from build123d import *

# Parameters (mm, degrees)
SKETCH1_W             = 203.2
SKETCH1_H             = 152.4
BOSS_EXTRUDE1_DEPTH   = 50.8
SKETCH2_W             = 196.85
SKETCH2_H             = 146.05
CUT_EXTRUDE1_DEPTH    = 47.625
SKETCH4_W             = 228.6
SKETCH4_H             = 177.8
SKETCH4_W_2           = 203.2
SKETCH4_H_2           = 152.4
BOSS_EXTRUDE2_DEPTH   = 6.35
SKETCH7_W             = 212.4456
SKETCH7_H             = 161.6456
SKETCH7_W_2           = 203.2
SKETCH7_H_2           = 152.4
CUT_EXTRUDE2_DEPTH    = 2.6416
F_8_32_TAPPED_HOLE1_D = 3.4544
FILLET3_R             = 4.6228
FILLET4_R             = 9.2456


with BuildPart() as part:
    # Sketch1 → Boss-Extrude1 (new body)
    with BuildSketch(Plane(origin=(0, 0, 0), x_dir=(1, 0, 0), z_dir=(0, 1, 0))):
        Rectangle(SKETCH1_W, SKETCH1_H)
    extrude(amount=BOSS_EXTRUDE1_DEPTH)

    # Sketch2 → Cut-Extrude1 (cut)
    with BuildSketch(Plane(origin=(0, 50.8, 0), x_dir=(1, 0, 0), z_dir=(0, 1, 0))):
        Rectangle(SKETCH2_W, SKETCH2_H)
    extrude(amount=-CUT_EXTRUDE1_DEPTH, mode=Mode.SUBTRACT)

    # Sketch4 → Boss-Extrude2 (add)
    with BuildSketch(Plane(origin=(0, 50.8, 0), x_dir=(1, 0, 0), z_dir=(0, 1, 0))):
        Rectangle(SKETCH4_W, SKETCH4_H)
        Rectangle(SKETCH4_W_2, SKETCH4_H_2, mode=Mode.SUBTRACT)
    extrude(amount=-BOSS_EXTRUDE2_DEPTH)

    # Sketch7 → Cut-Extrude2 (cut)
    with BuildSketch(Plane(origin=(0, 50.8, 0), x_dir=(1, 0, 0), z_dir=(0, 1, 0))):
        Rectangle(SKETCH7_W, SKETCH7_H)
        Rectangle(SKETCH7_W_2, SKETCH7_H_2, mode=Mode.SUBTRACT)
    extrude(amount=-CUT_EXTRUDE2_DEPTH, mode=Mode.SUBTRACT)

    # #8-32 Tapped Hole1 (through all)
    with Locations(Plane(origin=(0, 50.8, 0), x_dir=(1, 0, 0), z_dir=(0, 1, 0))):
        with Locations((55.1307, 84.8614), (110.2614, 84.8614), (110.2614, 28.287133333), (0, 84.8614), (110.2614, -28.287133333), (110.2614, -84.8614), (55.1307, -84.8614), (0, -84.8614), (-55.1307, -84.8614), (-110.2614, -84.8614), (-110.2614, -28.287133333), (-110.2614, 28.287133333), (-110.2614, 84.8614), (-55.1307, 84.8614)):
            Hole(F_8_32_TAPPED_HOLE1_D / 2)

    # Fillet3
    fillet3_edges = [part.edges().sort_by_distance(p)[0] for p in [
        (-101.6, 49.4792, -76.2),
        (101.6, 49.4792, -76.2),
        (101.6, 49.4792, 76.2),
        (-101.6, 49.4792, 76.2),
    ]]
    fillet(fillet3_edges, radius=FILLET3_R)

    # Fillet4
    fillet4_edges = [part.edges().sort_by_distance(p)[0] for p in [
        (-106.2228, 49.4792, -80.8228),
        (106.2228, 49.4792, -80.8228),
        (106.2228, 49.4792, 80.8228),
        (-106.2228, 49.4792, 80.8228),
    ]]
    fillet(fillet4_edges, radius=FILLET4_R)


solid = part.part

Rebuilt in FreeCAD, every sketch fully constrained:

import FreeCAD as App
import Part
import Sketcher
Q = App.Units.Quantity


def edges_at(feature, points):
    """Names of the edges that pass closest to the given points."""
    edges = feature.Shape.Edges
    near = lambda p: min(range(len(edges)), key=lambda i: edges[i].distToShape(Part.Vertex(*p))[0])
    return sorted({f"Edge{near(p) + 1}" for p in points})


def add_polygon(sketch, points):
    """Adds a closed chain of lines whose ends are joined by coincident constraints."""
    first, n = sketch.GeometryCount, len(points)
    for a, b in zip(points, points[1:] + points[:1]):
        sketch.addGeometry(Part.LineSegment(App.Vector(*a, 0), App.Vector(*b, 0)), False)
    for i in range(n):
        sketch.addConstraint(Sketcher.Constraint("Coincident", first + i, 2, first + (i + 1) % n, 1))

doc = App.newDocument("Part")
body = doc.addObject("PartDesign::Body", "Body")

sketch1 = doc.addObject("Sketcher::SketchObject", "Sketch")
body.addObject(sketch1)
sketch1.AttachmentSupport = (doc.XZ_Plane, [""])
sketch1.MapMode = "FlatFace"
add_polygon(sketch1, [(-102, -76), (-102, 76), (102, 76), (102, -76)])
sketch1.addConstraint([
    Sketcher.Constraint("Vertical", 0),
    Sketcher.Constraint("Horizontal", 1),
    Sketcher.Constraint("Vertical", 2),
    Sketcher.Constraint("Horizontal", 3),
    Sketcher.Constraint("Symmetric", 0, 2, 2, 2, -1, 1),
    Sketcher.Constraint("DistanceX", 1, 1, 1, 2, Q("8 in")),
    Sketcher.Constraint("DistanceY", 0, 1, 0, 2, Q("6 in")),
])
pad1 = doc.addObject("PartDesign::Pad", "Pad")
body.addObject(pad1)
pad1.Profile = sketch1
pad1.Length = Q("2 in")
pad1.Reversed = True

sketch2 = doc.addObject("Sketcher::SketchObject", "Sketch001")
body.addObject(sketch2)
sketch2.AttachmentSupport = (doc.XZ_Plane, [""])
sketch2.MapMode = "FlatFace"
sketch2.AttachmentOffset = App.Placement(App.Vector(0, 0, -2 * 25.4), App.Rotation())
add_polygon(sketch2, [(-98, -73), (-98, 73), (98, 73), (98, -73)])
sketch2.addConstraint([
    Sketcher.Constraint("Vertical", 0),
    Sketcher.Constraint("Horizontal", 1),
    Sketcher.Constraint("Vertical", 2),
    Sketcher.Constraint("Horizontal", 3),
    Sketcher.Constraint("Symmetric", 0, 2, 2, 2, -1, 1),
    Sketcher.Constraint("DistanceX", 1, 1, 1, 2, Q("7.75 in")),
    Sketcher.Constraint("DistanceY", 0, 1, 0, 2, Q("5.75 in")),
])
pocket1 = doc.addObject("PartDesign::Pocket", "Pocket")
body.addObject(pocket1)
pocket1.Profile = sketch2
pocket1.Length = Q("1.875 in")
pocket1.Reversed = True

sketch3 = doc.addObject("Sketcher::SketchObject", "Sketch002")
body.addObject(sketch3)
sketch3.AttachmentSupport = (doc.XZ_Plane, [""])
sketch3.MapMode = "FlatFace"
sketch3.AttachmentOffset = App.Placement(App.Vector(0, 0, -2 * 25.4), App.Rotation())
add_polygon(sketch3, [(-114, -89), (-114, 89), (114, 89), (114, -89)])
add_polygon(sketch3, [(102, 76), (-102, 76), (-102, -76), (102, -76)])
sketch3.addConstraint([
    Sketcher.Constraint("Vertical", 0),
    Sketcher.Constraint("Horizontal", 1),
    Sketcher.Constraint("Vertical", 2),
    Sketcher.Constraint("Horizontal", 3),
    Sketcher.Constraint("Horizontal", 4),
    Sketcher.Constraint("Vertical", 5),
    Sketcher.Constraint("Horizontal", 6),
    Sketcher.Constraint("Vertical", 7),
    Sketcher.Constraint("Symmetric", 0, 2, 2, 2, -1, 1),
    Sketcher.Constraint("Symmetric", 4, 2, 6, 2, -1, 1),
    Sketcher.Constraint("DistanceX", 1, 1, 1, 2, Q("9 in")),
    Sketcher.Constraint("DistanceX", 4, 2, 4, 1, Q("8 in")),
    Sketcher.Constraint("DistanceY", 0, 1, 0, 2, Q("7 in")),
    Sketcher.Constraint("DistanceY", 5, 2, 5, 1, Q("6 in")),
])
pad2 = doc.addObject("PartDesign::Pad", "Pad001")
body.addObject(pad2)
pad2.Profile = sketch3
pad2.Length = Q("0.25 in")

sketch4 = doc.addObject("Sketcher::SketchObject", "Sketch003")
body.addObject(sketch4)
sketch4.AttachmentSupport = (doc.XZ_Plane, [""])
sketch4.MapMode = "FlatFace"
sketch4.AttachmentOffset = App.Placement(App.Vector(0, 0, -2 * 25.4), App.Rotation())
add_polygon(sketch4, [(-106, -81), (-106, 81), (106, 81), (106, -81)])
add_polygon(sketch4, [(102, 76), (-102, 76), (-102, -76), (102, -76)])
sketch4.addConstraint([
    Sketcher.Constraint("Vertical", 0),
    Sketcher.Constraint("Horizontal", 1),
    Sketcher.Constraint("Vertical", 2),
    Sketcher.Constraint("Horizontal", 3),
    Sketcher.Constraint("Horizontal", 4),
    Sketcher.Constraint("Vertical", 5),
    Sketcher.Constraint("Horizontal", 6),
    Sketcher.Constraint("Vertical", 7),
    Sketcher.Constraint("Symmetric", 0, 2, 2, 2, -1, 1),
    Sketcher.Constraint("Symmetric", 4, 2, 6, 2, -1, 1),
    Sketcher.Constraint("DistanceX", 4, 2, 4, 1, Q("8 in")),
    Sketcher.Constraint("DistanceY", 5, 2, 5, 1, Q("6 in")),
    Sketcher.Constraint("DistanceX", 1, 1, 1, 2, Q("8.364 in")),
    Sketcher.Constraint("DistanceY", 0, 1, 0, 2, Q("6.364 in")),
])
pocket2 = doc.addObject("PartDesign::Pocket", "Pocket001")
body.addObject(pocket2)
pocket2.Profile = sketch4
pocket2.Length = Q("0.104 in")
pocket2.Reversed = True

sketch5 = doc.addObject("Sketcher::SketchObject", "Sketch004")
body.addObject(sketch5)
sketch5.AttachmentSupport = (doc.XZ_Plane, [""])
sketch5.MapMode = "FlatFace"
sketch5.AttachmentOffset = App.Placement(App.Vector(0, 0, -2 * 25.4), App.Rotation())
sketch5.addGeometry([
    Part.Circle(App.Vector(55.1, -84.9, 0), App.Vector(0, 0, 1), 1.7),
    Part.Circle(App.Vector(110.3, -84.9, 0), App.Vector(0, 0, 1), 1.7),
    Part.Circle(App.Vector(110.3, -28.3, 0), App.Vector(0, 0, 1), 1.7),
    Part.Circle(App.Vector(0, -84.9, 0), App.Vector(0, 0, 1), 1.7),
    Part.Circle(App.Vector(110.3, 28.3, 0), App.Vector(0, 0, 1), 1.7),
    Part.Circle(App.Vector(110.3, 84.9, 0), App.Vector(0, 0, 1), 1.7),
    Part.Circle(App.Vector(55.1, 84.9, 0), App.Vector(0, 0, 1), 1.7),
    Part.Circle(App.Vector(0, 84.9, 0), App.Vector(0, 0, 1), 1.7),
    Part.Circle(App.Vector(-55.1, 84.9, 0), App.Vector(0, 0, 1), 1.7),
    Part.Circle(App.Vector(-110.3, 84.9, 0), App.Vector(0, 0, 1), 1.7),
    Part.Circle(App.Vector(-110.3, 28.3, 0), App.Vector(0, 0, 1), 1.7),
    Part.Circle(App.Vector(-110.3, -28.3, 0), App.Vector(0, 0, 1), 1.7),
    Part.Circle(App.Vector(-110.3, -84.9, 0), App.Vector(0, 0, 1), 1.7),
    Part.Circle(App.Vector(-55.1, -84.9, 0), App.Vector(0, 0, 1), 1.7),
], False)
sketch5.addConstraint([
    Sketcher.Constraint("Equal", 0, 1),
    Sketcher.Constraint("Equal", 1, 2),
    Sketcher.Constraint("Equal", 2, 3),
    Sketcher.Constraint("Equal", 3, 4),
    Sketcher.Constraint("Equal", 4, 5),
    Sketcher.Constraint("Equal", 5, 6),
    Sketcher.Constraint("Equal", 6, 7),
    Sketcher.Constraint("Equal", 7, 8),
    Sketcher.Constraint("Equal", 8, 9),
    Sketcher.Constraint("Equal", 9, 10),
    Sketcher.Constraint("Equal", 10, 11),
    Sketcher.Constraint("Equal", 11, 12),
    Sketcher.Constraint("Equal", 12, 13),
    Sketcher.Constraint("Symmetric", 3, 3, 7, 3, -1, 1),
    Sketcher.Constraint("Symmetric", 0, 3, 8, 3, -1, 1),
    Sketcher.Constraint("Symmetric", 1, 3, 9, 3, -1, 1),
    Sketcher.Constraint("Symmetric", 2, 3, 10, 3, -1, 1),
    Sketcher.Constraint("Symmetric", 4, 3, 11, 3, -1, 1),
    Sketcher.Constraint("Symmetric", 5, 3, 12, 3, -1, 1),
    Sketcher.Constraint("Symmetric", 6, 3, 13, 3, -1, 1),
    Sketcher.Constraint("Symmetric", 6, 3, 8, 3, -2),
    Sketcher.Constraint("Symmetric", 5, 3, 9, 3, -2),
    Sketcher.Constraint("Symmetric", 4, 3, 10, 3, -2),
    Sketcher.Constraint("PointOnObject", 3, 3, -2),
    Sketcher.Constraint("Horizontal", 0, 3, 1, 3),
    Sketcher.Constraint("Horizontal", 1, 3, 3, 3),
    Sketcher.Constraint("Vertical", 1, 3, 2, 3),
    Sketcher.Constraint("Diameter", 0, Q("0.136 in")),
    Sketcher.Constraint("DistanceY", 0, 3, -1, 1, Q("3.341 in")),
    Sketcher.Constraint("DistanceX", -1, 1, 1, 3, Q("4.341 in")),
    Sketcher.Constraint("DistanceX", 8, 3, 6, 3, Q("4.341 in")),
    Sketcher.Constraint("DistanceY", 2, 3, -1, 1, Q("28.287133 mm")),
])
doc.recompute()
hole = doc.addObject("PartDesign::Hole", "Hole")
body.addObject(hole)
hole.Profile = sketch5
hole.ThreadType = "None"
hole.Diameter = Q("0.136 in")
hole.DepthType = "ThroughAll"
hole.Reversed = True
doc.recompute()

fillet = doc.addObject("PartDesign::Fillet", "Fillet")
body.addObject(fillet)
fillet.Base = (hole, edges_at(hole, [
    (-101.6, 49.479, -76.2),
    (101.6, 49.479, -76.2),
    (101.6, 49.479, 76.2),
    (-101.6, 49.479, 76.2),
]))
fillet.Radius = Q("0.182 in")
doc.recompute()

fillet2 = doc.addObject("PartDesign::Fillet", "Fillet001")
body.addObject(fillet2)
fillet2.Base = (fillet, edges_at(fillet, [
    (-106.223, 49.479, -80.823),
    (106.223, 49.479, -80.823),
    (106.223, 49.479, 80.823),
    (-106.223, 49.479, 80.823),
]))
fillet2.Radius = Q("0.364 in")

doc.recompute()
